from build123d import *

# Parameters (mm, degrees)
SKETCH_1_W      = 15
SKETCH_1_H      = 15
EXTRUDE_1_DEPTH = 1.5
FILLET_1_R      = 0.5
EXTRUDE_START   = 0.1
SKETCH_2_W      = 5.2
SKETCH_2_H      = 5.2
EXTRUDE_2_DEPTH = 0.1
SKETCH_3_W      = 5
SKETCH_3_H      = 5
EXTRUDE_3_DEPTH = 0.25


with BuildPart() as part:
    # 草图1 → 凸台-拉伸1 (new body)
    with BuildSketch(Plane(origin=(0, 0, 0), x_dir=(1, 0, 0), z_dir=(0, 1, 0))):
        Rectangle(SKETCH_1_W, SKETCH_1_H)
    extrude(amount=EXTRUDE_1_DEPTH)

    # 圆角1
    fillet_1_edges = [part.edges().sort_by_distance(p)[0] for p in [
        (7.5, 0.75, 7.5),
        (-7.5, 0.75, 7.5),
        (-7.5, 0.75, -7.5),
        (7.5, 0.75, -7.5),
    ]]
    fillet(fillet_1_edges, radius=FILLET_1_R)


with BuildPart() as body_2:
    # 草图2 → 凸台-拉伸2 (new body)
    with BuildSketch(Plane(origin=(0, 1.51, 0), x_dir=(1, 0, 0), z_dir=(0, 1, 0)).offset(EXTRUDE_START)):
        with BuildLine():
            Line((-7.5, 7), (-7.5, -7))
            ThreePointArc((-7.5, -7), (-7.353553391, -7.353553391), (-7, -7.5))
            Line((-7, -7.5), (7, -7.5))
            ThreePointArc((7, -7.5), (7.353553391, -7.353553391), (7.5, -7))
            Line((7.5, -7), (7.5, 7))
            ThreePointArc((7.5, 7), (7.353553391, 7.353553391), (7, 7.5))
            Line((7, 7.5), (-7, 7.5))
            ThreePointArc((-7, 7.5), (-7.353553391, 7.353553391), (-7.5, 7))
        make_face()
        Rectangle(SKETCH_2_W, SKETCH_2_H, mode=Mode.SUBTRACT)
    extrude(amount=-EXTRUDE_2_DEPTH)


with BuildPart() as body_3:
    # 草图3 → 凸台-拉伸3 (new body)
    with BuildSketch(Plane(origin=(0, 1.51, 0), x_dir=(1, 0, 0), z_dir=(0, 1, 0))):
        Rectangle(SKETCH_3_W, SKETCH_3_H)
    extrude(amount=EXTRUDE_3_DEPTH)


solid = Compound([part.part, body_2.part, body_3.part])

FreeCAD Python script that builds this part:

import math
import FreeCAD as App
import Part
import Sketcher
from FreeCAD import Vector
Q = App.Units.Quantity


def edges_at(feature, points):
    """Names of the edges that pass closest to the given points."""
    edges = feature.Shape.Edges
    near = lambda p: min(range(len(edges)), key=lambda i: edges[i].distToShape(Part.Vertex(*p))[0])
    return sorted({f"Edge{near(p) + 1}" for p in points})


def add_polygon(sketch, points):
    """Adds a closed chain of lines whose ends are joined by coincident constraints."""
    first, n = sketch.GeometryCount, len(points)
    for a, b in zip(points, points[1:] + points[:1]):
        sketch.addGeometry(Part.LineSegment(App.Vector(*a, 0), App.Vector(*b, 0)), False)
    for i in range(n):
        sketch.addConstraint(Sketcher.Constraint("Coincident", first + i, 2, first + (i + 1) % n, 1))

doc = App.newDocument("Part")
body = doc.addObject("PartDesign::Body", "Body")

sketch1 = body.newObject("Sketcher::SketchObject", "Sketch")
sketch1.AttachmentSupport = (doc.getObject("XZ_Plane"), [""])
sketch1.MapMode = "FlatFace"
add_polygon(sketch1, [(-8, -8), (-8, 8), (8, 8), (8, -8)])
sketch1.addConstraint(Sketcher.Constraint("Vertical", 0))
sketch1.addConstraint(Sketcher.Constraint("Horizontal", 1))
sketch1.addConstraint(Sketcher.Constraint("Vertical", 2))
sketch1.addConstraint(Sketcher.Constraint("Horizontal", 3))
sketch1.addConstraint(Sketcher.Constraint("Symmetric", 0, 2, 2, 2, -1, 1))
sketch1.addConstraint(Sketcher.Constraint("Equal", 3, 0))
sketch1.addConstraint(Sketcher.Constraint("DistanceX", 1, 1, 1, 2, Q("15 mm")))
pad1 = body.newObject("PartDesign::Pad", "Pad")
pad1.Profile = sketch1
pad1.Length = 1.5
pad1.Reversed = True
doc.recompute()

fillet = body.newObject("PartDesign::Fillet", "Fillet")
fillet.Base = (pad1, edges_at(pad1, [
    (7.5, 0.75, 7.5),
    (-7.5, 0.75, 7.5),
    (-7.5, 0.75, -7.5),
    (7.5, 0.75, -7.5),
]))
fillet.Radius = 0.5
body2 = doc.addObject("PartDesign::Body", "Body001")

sketch2 = body2.newObject("Sketcher::SketchObject", "Sketch001")
sketch2.AttachmentSupport = (doc.getObject("XZ_Plane001"), [""])
sketch2.MapMode = "FlatFace"
sketch2.AttachmentOffset = App.Placement(Vector(0, 0, -1.61), App.Rotation())
sketch2.addGeometry(Part.LineSegment(Vector(-7.5, -7, 0), Vector(-7.5, 7, 0)), False)
sketch2.addGeometry(Part.ArcOfCircle(Part.Circle(Vector(-7, 7, 0), Vector(0, 0, 1), 0.5), math.radians(90), math.radians(180)), False)
sketch2.addGeometry(Part.LineSegment(Vector(-7, 7.5, 0), Vector(7, 7.5, 0)), False)
sketch2.addGeometry(Part.ArcOfCircle(Part.Circle(Vector(7, 7, 0), Vector(0, 0, 1), 0.5), math.radians(0), math.radians(90)), False)
sketch2.addGeometry(Part.LineSegment(Vector(7.5, 7, 0), Vector(7.5, -7, 0)), False)
sketch2.addGeometry(Part.ArcOfCircle(Part.Circle(Vector(7, -7, 0), Vector(0, 0, 1), 0.5), math.radians(-90), math.radians(0)), False)
sketch2.addGeometry(Part.LineSegment(Vector(7, -7.5, 0), Vector(-7, -7.5, 0)), False)
sketch2.addGeometry(Part.ArcOfCircle(Part.Circle(Vector(-7, -7, 0), Vector(0, 0, 1), 0.5), math.radians(180), math.radians(270)), False)
add_polygon(sketch2, [(2.6, 2.6), (-2.6, 2.6), (-2.6, -2.6), (2.6, -2.6)])
sketch2.addConstraint(Sketcher.Constraint("Tangent", 0, 2, 1, 2))
sketch2.addConstraint(Sketcher.Constraint("Tangent", 1, 1, 2, 1))
sketch2.addConstraint(Sketcher.Constraint("Tangent", 2, 2, 3, 2))
sketch2.addConstraint(Sketcher.Constraint("Tangent", 3, 1, 4, 1))
sketch2.addConstraint(Sketcher.Constraint("Tangent", 4, 2, 5, 2))
sketch2.addConstraint(Sketcher.Constraint("Tangent", 5, 1, 6, 1))
sketch2.addConstraint(Sketcher.Constraint("Tangent", 6, 2, 7, 2))
sketch2.addConstraint(Sketcher.Constraint("Tangent", 7, 1, 0, 1))
sketch2.addConstraint(Sketcher.Constraint("Vertical", 0))
sketch2.addConstraint(Sketcher.Constraint("Horizontal", 2))
sketch2.addConstraint(Sketcher.Constraint("Vertical", 4))
sketch2.addConstraint(Sketcher.Constraint("Horizontal", 6))
sketch2.addConstraint(Sketcher.Constraint("Horizontal", 8))
sketch2.addConstraint(Sketcher.Constraint("Vertical", 9))
sketch2.addConstraint(Sketcher.Constraint("Horizontal", 10))
sketch2.addConstraint(Sketcher.Constraint("Vertical", 11))
sketch2.addConstraint(Sketcher.Constraint("Equal", 1, 3))
sketch2.addConstraint(Sketcher.Constraint("Equal", 3, 5))
sketch2.addConstraint(Sketcher.Constraint("Equal", 5, 7))
sketch2.addConstraint(Sketcher.Constraint("Symmetric", 1, 3, 5, 3, -1, 1))
sketch2.addConstraint(Sketcher.Constraint("Symmetric", 8, 2, 10, 2, -1, 1))
sketch2.addConstraint(Sketcher.Constraint("Equal", 6, 0))
sketch2.addConstraint(Sketcher.Constraint("Equal", 10, 9))
sketch2.addConstraint(Sketcher.Constraint("Radius", 1, Q("0.5 mm")))
sketch2.addConstraint(Sketcher.Constraint("DistanceX", 2, 1, 2, 2, Q("14 mm")))
sketch2.addConstraint(Sketcher.Constraint("DistanceX", 8, 2, 8, 1, Q("5.2 mm")))
pad2 = body2.newObject("PartDesign::Pad", "Pad001")
pad2.Profile = sketch2
pad2.Length = 0.1
body3 = doc.addObject("PartDesign::Body", "Body002")

sketch3 = body3.newObject("Sketcher::SketchObject", "Sketch002")
sketch3.AttachmentSupport = (doc.getObject("XZ_Plane002"), [""])
sketch3.MapMode = "FlatFace"
sketch3.AttachmentOffset = App.Placement(Vector(0, 0, -1.51), App.Rotation())
add_polygon(sketch3, [(-2, -2), (-2, 2), (2, 2), (2, -2)])
sketch3.addConstraint(Sketcher.Constraint("Vertical", 0))
sketch3.addConstraint(Sketcher.Constraint("Horizontal", 1))
sketch3.addConstraint(Sketcher.Constraint("Vertical", 2))
sketch3.addConstraint(Sketcher.Constraint("Horizontal", 3))
sketch3.addConstraint(Sketcher.Constraint("Symmetric", 0, 2, 2, 2, -1, 1))
sketch3.addConstraint(Sketcher.Constraint("Equal", 3, 0))
sketch3.addConstraint(Sketcher.Constraint("DistanceX", 1, 1, 1, 2, Q("5 mm")))
pad3 = body3.newObject("PartDesign::Pad", "Pad002")
pad3.Profile = sketch3
pad3.Length = 0.25
pad3.Reversed = True

doc.recompute()
